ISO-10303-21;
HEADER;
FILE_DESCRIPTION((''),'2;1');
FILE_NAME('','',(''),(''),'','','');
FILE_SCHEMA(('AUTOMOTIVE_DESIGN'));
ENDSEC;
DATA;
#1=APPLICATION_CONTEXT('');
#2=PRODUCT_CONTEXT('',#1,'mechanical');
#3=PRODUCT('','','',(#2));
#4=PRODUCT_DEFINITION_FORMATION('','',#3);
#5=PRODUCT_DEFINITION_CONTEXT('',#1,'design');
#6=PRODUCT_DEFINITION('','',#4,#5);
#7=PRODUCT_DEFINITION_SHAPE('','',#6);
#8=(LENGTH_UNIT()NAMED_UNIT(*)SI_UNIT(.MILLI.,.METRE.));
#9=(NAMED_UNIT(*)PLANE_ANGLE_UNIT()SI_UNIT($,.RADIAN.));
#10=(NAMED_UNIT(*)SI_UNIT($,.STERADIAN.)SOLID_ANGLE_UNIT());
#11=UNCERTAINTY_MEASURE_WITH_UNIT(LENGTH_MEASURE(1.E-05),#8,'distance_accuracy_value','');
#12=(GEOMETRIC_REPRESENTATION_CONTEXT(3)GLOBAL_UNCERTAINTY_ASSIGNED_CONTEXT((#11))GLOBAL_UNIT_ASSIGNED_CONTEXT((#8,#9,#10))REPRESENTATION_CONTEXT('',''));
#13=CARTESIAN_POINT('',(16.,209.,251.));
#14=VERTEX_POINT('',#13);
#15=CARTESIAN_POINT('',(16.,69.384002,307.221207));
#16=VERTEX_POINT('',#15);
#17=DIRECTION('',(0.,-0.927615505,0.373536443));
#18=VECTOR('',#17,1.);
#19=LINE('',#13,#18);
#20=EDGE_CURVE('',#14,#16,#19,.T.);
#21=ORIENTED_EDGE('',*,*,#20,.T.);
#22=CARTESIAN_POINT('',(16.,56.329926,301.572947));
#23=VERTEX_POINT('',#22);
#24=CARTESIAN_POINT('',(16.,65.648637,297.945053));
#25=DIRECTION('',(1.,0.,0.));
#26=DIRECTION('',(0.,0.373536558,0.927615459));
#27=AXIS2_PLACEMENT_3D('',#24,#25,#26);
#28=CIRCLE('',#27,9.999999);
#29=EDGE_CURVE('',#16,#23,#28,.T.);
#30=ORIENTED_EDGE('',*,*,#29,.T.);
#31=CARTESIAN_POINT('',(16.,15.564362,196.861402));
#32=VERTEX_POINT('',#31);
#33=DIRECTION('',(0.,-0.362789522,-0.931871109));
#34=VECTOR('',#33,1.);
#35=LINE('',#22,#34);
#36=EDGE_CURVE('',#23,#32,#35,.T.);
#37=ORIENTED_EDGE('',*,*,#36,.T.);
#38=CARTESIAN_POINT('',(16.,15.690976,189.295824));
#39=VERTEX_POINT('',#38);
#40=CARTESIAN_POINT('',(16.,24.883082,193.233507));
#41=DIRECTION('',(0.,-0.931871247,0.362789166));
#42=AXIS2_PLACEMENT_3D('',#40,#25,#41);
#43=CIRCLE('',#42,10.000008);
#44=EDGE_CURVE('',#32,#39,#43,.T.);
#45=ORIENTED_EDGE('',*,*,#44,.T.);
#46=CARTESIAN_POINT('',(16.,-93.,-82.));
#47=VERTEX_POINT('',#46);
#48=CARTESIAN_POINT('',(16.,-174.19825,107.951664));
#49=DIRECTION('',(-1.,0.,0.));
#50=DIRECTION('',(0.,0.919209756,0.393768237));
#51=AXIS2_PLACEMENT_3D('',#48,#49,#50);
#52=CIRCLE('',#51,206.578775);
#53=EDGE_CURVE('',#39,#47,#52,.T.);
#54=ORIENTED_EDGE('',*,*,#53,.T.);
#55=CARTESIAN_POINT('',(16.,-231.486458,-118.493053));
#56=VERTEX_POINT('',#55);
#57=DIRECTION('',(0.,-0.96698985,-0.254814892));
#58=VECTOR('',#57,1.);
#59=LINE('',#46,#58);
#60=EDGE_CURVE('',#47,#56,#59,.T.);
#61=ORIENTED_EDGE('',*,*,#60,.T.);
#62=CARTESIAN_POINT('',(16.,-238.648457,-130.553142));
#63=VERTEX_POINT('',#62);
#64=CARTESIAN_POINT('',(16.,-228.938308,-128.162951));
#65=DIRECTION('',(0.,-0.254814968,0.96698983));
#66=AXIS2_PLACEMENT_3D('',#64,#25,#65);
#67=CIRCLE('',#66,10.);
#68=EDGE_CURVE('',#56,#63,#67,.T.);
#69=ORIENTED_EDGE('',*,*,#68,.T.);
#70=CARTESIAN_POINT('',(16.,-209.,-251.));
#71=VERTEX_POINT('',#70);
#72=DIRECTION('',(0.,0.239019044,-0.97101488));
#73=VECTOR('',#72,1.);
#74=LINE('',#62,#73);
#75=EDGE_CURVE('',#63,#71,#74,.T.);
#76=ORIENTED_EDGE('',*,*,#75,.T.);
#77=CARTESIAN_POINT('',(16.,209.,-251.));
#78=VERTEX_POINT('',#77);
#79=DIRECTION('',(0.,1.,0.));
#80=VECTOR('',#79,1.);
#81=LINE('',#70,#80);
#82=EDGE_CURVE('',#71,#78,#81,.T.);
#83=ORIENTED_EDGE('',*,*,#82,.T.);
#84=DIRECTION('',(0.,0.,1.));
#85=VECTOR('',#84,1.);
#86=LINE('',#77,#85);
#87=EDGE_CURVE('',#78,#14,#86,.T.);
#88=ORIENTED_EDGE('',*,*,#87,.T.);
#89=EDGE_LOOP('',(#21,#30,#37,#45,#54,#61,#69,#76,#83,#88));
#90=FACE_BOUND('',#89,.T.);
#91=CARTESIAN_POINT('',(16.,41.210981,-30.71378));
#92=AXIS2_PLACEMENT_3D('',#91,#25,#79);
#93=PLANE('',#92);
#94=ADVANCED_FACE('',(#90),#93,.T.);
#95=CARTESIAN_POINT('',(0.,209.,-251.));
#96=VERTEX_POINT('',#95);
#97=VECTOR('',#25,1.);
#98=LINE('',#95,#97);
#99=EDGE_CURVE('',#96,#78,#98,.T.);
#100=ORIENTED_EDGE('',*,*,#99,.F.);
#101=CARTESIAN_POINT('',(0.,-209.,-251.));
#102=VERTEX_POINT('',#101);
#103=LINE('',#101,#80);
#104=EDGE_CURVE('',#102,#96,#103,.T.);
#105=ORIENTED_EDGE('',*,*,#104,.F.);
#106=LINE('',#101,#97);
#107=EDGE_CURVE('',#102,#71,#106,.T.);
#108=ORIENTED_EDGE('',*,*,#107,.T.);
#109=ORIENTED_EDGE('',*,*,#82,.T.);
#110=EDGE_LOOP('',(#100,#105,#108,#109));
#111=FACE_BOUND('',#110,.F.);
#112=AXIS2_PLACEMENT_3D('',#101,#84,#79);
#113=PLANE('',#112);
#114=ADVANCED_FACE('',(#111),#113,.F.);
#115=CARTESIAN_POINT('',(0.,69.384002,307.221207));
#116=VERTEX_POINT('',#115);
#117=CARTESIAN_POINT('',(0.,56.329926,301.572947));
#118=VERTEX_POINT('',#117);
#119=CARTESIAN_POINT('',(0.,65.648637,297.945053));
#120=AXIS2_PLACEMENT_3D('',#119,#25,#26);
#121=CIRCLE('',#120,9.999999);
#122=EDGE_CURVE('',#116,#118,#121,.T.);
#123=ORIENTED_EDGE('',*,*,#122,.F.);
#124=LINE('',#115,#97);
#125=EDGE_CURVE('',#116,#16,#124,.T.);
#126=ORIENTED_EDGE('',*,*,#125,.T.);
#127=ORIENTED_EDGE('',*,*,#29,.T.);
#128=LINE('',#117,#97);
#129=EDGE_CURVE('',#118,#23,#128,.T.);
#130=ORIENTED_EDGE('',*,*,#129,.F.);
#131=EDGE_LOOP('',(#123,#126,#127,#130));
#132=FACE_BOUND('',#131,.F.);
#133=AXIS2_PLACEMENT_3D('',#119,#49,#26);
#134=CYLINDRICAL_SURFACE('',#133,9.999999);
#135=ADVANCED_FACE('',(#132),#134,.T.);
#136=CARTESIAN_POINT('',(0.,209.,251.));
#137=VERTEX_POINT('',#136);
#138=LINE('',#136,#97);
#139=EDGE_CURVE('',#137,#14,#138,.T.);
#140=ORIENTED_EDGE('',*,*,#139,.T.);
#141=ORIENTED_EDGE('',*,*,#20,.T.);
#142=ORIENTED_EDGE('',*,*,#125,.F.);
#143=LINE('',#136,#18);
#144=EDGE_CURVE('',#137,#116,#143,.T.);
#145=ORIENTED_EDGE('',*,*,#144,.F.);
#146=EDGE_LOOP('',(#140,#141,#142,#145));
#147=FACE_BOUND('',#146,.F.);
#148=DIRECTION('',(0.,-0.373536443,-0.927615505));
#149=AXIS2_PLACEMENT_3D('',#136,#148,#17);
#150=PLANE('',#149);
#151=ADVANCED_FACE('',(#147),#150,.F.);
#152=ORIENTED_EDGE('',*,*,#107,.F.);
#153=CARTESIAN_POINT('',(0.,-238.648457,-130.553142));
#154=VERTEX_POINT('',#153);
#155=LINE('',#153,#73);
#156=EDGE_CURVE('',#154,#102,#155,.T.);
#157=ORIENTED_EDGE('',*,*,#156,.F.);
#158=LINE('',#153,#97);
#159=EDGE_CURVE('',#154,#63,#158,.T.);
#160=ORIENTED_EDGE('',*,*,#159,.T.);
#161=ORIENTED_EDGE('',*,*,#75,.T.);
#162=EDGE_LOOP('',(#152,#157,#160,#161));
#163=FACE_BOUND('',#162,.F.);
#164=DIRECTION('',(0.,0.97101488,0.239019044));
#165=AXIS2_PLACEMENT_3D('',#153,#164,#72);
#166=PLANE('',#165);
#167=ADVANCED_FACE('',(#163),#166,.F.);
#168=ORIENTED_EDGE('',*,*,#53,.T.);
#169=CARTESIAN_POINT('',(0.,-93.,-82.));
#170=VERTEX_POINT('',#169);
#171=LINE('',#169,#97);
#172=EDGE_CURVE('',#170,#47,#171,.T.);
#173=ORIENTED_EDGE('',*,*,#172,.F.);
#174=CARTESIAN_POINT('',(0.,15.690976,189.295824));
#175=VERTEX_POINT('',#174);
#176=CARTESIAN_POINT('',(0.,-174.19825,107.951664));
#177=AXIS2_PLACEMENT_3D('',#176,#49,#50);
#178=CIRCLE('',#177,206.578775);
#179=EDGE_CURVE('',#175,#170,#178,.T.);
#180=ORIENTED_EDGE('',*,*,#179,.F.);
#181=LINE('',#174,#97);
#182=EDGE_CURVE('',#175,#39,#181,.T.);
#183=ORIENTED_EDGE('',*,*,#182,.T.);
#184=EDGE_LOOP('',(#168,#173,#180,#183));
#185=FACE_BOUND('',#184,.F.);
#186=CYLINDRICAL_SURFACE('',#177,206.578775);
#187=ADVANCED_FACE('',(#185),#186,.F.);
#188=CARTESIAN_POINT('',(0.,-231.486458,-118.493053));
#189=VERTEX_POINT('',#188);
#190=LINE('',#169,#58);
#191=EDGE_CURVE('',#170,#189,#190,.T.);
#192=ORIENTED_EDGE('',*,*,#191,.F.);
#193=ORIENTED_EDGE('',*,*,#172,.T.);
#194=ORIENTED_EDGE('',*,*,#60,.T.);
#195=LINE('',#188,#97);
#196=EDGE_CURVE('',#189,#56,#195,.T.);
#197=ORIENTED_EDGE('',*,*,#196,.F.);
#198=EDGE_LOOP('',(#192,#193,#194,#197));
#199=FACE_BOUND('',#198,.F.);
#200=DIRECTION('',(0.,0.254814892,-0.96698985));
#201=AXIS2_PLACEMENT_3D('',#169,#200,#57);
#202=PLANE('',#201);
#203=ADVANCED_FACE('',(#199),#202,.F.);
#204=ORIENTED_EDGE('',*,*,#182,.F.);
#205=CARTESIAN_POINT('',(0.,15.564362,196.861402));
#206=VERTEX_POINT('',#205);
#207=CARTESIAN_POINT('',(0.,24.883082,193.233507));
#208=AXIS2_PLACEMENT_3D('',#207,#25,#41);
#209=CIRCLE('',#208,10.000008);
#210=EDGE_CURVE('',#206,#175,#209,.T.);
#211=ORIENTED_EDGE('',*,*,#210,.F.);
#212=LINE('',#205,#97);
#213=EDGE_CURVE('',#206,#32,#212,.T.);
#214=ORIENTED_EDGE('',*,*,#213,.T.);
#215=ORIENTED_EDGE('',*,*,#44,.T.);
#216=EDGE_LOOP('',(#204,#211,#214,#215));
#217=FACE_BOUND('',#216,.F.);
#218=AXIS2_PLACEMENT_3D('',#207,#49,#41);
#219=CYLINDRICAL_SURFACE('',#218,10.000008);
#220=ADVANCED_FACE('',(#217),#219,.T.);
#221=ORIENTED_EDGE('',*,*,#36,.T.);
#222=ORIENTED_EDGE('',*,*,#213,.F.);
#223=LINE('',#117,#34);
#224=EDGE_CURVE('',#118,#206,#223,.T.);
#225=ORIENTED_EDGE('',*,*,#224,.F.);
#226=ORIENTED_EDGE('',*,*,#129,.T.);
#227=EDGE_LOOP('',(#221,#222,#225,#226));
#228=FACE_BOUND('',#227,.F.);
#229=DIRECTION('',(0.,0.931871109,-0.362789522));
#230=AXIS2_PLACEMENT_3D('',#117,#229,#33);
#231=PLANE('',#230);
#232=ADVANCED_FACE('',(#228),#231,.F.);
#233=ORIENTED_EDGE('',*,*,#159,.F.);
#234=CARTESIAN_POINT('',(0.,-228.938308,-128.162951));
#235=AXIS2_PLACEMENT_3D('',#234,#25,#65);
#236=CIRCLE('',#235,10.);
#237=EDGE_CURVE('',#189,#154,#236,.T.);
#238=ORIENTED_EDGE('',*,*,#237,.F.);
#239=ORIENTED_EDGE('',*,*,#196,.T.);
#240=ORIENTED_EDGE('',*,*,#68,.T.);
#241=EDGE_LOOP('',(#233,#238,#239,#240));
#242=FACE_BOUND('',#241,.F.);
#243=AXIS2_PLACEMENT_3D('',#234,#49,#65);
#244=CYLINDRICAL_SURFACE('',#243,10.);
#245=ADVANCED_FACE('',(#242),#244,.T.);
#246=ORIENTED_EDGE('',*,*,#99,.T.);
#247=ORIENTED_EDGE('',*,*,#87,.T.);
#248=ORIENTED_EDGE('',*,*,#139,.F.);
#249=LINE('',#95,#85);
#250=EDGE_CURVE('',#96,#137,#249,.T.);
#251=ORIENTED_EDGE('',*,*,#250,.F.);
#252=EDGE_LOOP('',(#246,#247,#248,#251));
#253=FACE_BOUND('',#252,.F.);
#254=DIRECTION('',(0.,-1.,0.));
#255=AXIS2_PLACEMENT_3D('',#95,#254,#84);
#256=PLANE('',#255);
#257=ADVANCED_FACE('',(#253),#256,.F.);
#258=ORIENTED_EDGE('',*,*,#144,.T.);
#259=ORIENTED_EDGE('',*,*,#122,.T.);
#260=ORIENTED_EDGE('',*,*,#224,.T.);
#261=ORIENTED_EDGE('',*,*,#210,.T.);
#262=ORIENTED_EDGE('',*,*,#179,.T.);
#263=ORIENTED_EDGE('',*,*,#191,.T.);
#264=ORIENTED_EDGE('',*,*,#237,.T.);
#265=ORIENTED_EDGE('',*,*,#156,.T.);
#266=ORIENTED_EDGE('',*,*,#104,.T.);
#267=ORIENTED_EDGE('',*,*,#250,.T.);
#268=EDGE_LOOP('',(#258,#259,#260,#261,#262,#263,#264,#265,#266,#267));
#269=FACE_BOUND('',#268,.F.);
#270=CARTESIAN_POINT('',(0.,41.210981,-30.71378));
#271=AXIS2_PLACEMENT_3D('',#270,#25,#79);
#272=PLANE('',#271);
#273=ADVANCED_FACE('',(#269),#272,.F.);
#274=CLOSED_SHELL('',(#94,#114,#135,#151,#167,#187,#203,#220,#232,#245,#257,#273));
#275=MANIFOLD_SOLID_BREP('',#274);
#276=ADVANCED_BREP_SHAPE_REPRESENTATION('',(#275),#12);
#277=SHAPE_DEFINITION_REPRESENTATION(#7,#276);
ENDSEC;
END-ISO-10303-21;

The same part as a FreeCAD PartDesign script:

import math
import FreeCAD as App
import Part
import Sketcher
Q = App.Units.Quantity

doc = App.newDocument("Part")
body = doc.addObject("PartDesign::Body", "Body")

# Sketch on YZ plane
sketch1 = body.newObject("Sketcher::SketchObject", "Sketch")
sketch1.AttachmentSupport = (doc.getObject("YZ_Plane"), [""])
sketch1.MapMode = "FlatFace"
sketch1.addGeometry([
    Part.LineSegment(App.Vector(-209, -251, 0), App.Vector(209, -251, 0)),  # 0
    Part.LineSegment(App.Vector(209, -251, 0), App.Vector(209, 251, 0)),  # 1
    Part.LineSegment(App.Vector(209, 251, 0), App.Vector(69.384002, 307.221207, 0)),  # 2
    Part.ArcOfCircle(Part.Circle(App.Vector(65.648637, 297.945053, 0), App.Vector(0, 0, 1), 9.999999), math.radians(68.066108), math.radians(158.728398)),  # 3
    Part.LineSegment(App.Vector(56.329926, 301.572947, 0), App.Vector(15.564362, 196.861402, 0)),  # 4
    Part.ArcOfCircle(Part.Circle(App.Vector(24.883082, 193.233507, 0), App.Vector(0, 0, 1), 10.000008), math.radians(158.728413), math.radians(203.18916)),  # 5
    Part.ArcOfCircle(Part.Circle(App.Vector(-174.19825, 107.951664, 0), App.Vector(0, 0, 1), 206.578775), math.radians(-66.854844), math.radians(23.189174)),  # 6
    Part.LineSegment(App.Vector(-93, -82, 0), App.Vector(-231.486458, -118.493053, 0)),  # 7
    Part.ArcOfCircle(Part.Circle(App.Vector(-228.938308, -128.162951, 0), App.Vector(0, 0, 1), 10), math.radians(104.762621), math.radians(193.828653)),  # 8
    Part.LineSegment(App.Vector(-238.648457, -130.553142, 0), App.Vector(-209, -251, 0)),  # 9
], False)
sketch1.addConstraint([
    Sketcher.Constraint("Coincident", 0, 2, 1, 1),
    Sketcher.Constraint("Coincident", 1, 2, 2, 1),
    Sketcher.Constraint("Coincident", 2, 2, 3, 1),
    Sketcher.Constraint("Coincident", 3, 2, 4, 1),
    Sketcher.Constraint("Coincident", 4, 2, 5, 1),
    Sketcher.Constraint("Coincident", 5, 2, 6, 2),
    Sketcher.Constraint("Coincident", 6, 1, 7, 1),
    Sketcher.Constraint("Coincident", 7, 2, 8, 1),
    Sketcher.Constraint("Coincident", 8, 2, 9, 1),
    Sketcher.Constraint("Coincident", 9, 2, 0, 1),
    Sketcher.Constraint("Horizontal", 0),
    Sketcher.Constraint("Vertical", 1),
    Sketcher.Constraint("Radius", 3, Q("9.999999 mm")),
    Sketcher.Constraint("Radius", 8, Q("10 mm")),
    Sketcher.Constraint("DistanceX", 0, 1, 0, 2, Q("418 mm")),
    Sketcher.Constraint("DistanceY", 1, 1, 1, 2, Q("502 mm")),
    Sketcher.Constraint("DistanceX", -1, 1, 0, 2, Q("209 mm")),
    Sketcher.Constraint("DistanceY", 0, 2, -1, 1, Q("251 mm")),
    Sketcher.Constraint("DistanceX", 6, 1, -1, 1, Q("93 mm")),
    Sketcher.Constraint("DistanceY", 6, 1, -1, 1, Q("82 mm")),
    Sketcher.Constraint("Radius", 5, Q("10.000008 mm")),
    Sketcher.Constraint("DistanceX", -1, 1, 2, 2, Q("69.384002 mm")),
    Sketcher.Constraint("Radius", 6, Q("206.578775 mm")),
    Sketcher.Constraint("DistanceX", 8, 2, 7, 2, Q("7.161999 mm")),
    Sketcher.Constraint("DistanceY", -1, 1, 4, 2, Q("196.861402 mm")),
    Sketcher.Constraint("DistanceY", 5, 3, 2, 2, Q("113.9877 mm")),
    Sketcher.Constraint("DistanceY", 8, 3, 7, 2, Q("9.669898 mm")),
    Sketcher.Constraint("DistanceX", 6, 3, -1, 1, Q("174.19825 mm")),
    Sketcher.Constraint("DistanceX", 8, 3, -1, 1, Q("228.938308 mm")),
    Sketcher.Constraint("DistanceY", 8, 3, -1, 1, Q("128.162951 mm")),
    Sketcher.Constraint("DistanceX", -1, 1, 4, 2, Q("15.564362 mm")),
    Sketcher.Constraint("DistanceY", 6, 3, 3, 3, Q("189.993389 mm")),
    Sketcher.Constraint("DistanceX", 3, 2, 3, 3, Q("9.318711 mm")),
    Sketcher.Constraint("DistanceY", 5, 2, 4, 2, Q("7.565578 mm")),
])
pad1 = body.newObject("PartDesign::Pad", "Pad")
pad1.Profile = sketch1
pad1.Length = 16

doc.recompute()
